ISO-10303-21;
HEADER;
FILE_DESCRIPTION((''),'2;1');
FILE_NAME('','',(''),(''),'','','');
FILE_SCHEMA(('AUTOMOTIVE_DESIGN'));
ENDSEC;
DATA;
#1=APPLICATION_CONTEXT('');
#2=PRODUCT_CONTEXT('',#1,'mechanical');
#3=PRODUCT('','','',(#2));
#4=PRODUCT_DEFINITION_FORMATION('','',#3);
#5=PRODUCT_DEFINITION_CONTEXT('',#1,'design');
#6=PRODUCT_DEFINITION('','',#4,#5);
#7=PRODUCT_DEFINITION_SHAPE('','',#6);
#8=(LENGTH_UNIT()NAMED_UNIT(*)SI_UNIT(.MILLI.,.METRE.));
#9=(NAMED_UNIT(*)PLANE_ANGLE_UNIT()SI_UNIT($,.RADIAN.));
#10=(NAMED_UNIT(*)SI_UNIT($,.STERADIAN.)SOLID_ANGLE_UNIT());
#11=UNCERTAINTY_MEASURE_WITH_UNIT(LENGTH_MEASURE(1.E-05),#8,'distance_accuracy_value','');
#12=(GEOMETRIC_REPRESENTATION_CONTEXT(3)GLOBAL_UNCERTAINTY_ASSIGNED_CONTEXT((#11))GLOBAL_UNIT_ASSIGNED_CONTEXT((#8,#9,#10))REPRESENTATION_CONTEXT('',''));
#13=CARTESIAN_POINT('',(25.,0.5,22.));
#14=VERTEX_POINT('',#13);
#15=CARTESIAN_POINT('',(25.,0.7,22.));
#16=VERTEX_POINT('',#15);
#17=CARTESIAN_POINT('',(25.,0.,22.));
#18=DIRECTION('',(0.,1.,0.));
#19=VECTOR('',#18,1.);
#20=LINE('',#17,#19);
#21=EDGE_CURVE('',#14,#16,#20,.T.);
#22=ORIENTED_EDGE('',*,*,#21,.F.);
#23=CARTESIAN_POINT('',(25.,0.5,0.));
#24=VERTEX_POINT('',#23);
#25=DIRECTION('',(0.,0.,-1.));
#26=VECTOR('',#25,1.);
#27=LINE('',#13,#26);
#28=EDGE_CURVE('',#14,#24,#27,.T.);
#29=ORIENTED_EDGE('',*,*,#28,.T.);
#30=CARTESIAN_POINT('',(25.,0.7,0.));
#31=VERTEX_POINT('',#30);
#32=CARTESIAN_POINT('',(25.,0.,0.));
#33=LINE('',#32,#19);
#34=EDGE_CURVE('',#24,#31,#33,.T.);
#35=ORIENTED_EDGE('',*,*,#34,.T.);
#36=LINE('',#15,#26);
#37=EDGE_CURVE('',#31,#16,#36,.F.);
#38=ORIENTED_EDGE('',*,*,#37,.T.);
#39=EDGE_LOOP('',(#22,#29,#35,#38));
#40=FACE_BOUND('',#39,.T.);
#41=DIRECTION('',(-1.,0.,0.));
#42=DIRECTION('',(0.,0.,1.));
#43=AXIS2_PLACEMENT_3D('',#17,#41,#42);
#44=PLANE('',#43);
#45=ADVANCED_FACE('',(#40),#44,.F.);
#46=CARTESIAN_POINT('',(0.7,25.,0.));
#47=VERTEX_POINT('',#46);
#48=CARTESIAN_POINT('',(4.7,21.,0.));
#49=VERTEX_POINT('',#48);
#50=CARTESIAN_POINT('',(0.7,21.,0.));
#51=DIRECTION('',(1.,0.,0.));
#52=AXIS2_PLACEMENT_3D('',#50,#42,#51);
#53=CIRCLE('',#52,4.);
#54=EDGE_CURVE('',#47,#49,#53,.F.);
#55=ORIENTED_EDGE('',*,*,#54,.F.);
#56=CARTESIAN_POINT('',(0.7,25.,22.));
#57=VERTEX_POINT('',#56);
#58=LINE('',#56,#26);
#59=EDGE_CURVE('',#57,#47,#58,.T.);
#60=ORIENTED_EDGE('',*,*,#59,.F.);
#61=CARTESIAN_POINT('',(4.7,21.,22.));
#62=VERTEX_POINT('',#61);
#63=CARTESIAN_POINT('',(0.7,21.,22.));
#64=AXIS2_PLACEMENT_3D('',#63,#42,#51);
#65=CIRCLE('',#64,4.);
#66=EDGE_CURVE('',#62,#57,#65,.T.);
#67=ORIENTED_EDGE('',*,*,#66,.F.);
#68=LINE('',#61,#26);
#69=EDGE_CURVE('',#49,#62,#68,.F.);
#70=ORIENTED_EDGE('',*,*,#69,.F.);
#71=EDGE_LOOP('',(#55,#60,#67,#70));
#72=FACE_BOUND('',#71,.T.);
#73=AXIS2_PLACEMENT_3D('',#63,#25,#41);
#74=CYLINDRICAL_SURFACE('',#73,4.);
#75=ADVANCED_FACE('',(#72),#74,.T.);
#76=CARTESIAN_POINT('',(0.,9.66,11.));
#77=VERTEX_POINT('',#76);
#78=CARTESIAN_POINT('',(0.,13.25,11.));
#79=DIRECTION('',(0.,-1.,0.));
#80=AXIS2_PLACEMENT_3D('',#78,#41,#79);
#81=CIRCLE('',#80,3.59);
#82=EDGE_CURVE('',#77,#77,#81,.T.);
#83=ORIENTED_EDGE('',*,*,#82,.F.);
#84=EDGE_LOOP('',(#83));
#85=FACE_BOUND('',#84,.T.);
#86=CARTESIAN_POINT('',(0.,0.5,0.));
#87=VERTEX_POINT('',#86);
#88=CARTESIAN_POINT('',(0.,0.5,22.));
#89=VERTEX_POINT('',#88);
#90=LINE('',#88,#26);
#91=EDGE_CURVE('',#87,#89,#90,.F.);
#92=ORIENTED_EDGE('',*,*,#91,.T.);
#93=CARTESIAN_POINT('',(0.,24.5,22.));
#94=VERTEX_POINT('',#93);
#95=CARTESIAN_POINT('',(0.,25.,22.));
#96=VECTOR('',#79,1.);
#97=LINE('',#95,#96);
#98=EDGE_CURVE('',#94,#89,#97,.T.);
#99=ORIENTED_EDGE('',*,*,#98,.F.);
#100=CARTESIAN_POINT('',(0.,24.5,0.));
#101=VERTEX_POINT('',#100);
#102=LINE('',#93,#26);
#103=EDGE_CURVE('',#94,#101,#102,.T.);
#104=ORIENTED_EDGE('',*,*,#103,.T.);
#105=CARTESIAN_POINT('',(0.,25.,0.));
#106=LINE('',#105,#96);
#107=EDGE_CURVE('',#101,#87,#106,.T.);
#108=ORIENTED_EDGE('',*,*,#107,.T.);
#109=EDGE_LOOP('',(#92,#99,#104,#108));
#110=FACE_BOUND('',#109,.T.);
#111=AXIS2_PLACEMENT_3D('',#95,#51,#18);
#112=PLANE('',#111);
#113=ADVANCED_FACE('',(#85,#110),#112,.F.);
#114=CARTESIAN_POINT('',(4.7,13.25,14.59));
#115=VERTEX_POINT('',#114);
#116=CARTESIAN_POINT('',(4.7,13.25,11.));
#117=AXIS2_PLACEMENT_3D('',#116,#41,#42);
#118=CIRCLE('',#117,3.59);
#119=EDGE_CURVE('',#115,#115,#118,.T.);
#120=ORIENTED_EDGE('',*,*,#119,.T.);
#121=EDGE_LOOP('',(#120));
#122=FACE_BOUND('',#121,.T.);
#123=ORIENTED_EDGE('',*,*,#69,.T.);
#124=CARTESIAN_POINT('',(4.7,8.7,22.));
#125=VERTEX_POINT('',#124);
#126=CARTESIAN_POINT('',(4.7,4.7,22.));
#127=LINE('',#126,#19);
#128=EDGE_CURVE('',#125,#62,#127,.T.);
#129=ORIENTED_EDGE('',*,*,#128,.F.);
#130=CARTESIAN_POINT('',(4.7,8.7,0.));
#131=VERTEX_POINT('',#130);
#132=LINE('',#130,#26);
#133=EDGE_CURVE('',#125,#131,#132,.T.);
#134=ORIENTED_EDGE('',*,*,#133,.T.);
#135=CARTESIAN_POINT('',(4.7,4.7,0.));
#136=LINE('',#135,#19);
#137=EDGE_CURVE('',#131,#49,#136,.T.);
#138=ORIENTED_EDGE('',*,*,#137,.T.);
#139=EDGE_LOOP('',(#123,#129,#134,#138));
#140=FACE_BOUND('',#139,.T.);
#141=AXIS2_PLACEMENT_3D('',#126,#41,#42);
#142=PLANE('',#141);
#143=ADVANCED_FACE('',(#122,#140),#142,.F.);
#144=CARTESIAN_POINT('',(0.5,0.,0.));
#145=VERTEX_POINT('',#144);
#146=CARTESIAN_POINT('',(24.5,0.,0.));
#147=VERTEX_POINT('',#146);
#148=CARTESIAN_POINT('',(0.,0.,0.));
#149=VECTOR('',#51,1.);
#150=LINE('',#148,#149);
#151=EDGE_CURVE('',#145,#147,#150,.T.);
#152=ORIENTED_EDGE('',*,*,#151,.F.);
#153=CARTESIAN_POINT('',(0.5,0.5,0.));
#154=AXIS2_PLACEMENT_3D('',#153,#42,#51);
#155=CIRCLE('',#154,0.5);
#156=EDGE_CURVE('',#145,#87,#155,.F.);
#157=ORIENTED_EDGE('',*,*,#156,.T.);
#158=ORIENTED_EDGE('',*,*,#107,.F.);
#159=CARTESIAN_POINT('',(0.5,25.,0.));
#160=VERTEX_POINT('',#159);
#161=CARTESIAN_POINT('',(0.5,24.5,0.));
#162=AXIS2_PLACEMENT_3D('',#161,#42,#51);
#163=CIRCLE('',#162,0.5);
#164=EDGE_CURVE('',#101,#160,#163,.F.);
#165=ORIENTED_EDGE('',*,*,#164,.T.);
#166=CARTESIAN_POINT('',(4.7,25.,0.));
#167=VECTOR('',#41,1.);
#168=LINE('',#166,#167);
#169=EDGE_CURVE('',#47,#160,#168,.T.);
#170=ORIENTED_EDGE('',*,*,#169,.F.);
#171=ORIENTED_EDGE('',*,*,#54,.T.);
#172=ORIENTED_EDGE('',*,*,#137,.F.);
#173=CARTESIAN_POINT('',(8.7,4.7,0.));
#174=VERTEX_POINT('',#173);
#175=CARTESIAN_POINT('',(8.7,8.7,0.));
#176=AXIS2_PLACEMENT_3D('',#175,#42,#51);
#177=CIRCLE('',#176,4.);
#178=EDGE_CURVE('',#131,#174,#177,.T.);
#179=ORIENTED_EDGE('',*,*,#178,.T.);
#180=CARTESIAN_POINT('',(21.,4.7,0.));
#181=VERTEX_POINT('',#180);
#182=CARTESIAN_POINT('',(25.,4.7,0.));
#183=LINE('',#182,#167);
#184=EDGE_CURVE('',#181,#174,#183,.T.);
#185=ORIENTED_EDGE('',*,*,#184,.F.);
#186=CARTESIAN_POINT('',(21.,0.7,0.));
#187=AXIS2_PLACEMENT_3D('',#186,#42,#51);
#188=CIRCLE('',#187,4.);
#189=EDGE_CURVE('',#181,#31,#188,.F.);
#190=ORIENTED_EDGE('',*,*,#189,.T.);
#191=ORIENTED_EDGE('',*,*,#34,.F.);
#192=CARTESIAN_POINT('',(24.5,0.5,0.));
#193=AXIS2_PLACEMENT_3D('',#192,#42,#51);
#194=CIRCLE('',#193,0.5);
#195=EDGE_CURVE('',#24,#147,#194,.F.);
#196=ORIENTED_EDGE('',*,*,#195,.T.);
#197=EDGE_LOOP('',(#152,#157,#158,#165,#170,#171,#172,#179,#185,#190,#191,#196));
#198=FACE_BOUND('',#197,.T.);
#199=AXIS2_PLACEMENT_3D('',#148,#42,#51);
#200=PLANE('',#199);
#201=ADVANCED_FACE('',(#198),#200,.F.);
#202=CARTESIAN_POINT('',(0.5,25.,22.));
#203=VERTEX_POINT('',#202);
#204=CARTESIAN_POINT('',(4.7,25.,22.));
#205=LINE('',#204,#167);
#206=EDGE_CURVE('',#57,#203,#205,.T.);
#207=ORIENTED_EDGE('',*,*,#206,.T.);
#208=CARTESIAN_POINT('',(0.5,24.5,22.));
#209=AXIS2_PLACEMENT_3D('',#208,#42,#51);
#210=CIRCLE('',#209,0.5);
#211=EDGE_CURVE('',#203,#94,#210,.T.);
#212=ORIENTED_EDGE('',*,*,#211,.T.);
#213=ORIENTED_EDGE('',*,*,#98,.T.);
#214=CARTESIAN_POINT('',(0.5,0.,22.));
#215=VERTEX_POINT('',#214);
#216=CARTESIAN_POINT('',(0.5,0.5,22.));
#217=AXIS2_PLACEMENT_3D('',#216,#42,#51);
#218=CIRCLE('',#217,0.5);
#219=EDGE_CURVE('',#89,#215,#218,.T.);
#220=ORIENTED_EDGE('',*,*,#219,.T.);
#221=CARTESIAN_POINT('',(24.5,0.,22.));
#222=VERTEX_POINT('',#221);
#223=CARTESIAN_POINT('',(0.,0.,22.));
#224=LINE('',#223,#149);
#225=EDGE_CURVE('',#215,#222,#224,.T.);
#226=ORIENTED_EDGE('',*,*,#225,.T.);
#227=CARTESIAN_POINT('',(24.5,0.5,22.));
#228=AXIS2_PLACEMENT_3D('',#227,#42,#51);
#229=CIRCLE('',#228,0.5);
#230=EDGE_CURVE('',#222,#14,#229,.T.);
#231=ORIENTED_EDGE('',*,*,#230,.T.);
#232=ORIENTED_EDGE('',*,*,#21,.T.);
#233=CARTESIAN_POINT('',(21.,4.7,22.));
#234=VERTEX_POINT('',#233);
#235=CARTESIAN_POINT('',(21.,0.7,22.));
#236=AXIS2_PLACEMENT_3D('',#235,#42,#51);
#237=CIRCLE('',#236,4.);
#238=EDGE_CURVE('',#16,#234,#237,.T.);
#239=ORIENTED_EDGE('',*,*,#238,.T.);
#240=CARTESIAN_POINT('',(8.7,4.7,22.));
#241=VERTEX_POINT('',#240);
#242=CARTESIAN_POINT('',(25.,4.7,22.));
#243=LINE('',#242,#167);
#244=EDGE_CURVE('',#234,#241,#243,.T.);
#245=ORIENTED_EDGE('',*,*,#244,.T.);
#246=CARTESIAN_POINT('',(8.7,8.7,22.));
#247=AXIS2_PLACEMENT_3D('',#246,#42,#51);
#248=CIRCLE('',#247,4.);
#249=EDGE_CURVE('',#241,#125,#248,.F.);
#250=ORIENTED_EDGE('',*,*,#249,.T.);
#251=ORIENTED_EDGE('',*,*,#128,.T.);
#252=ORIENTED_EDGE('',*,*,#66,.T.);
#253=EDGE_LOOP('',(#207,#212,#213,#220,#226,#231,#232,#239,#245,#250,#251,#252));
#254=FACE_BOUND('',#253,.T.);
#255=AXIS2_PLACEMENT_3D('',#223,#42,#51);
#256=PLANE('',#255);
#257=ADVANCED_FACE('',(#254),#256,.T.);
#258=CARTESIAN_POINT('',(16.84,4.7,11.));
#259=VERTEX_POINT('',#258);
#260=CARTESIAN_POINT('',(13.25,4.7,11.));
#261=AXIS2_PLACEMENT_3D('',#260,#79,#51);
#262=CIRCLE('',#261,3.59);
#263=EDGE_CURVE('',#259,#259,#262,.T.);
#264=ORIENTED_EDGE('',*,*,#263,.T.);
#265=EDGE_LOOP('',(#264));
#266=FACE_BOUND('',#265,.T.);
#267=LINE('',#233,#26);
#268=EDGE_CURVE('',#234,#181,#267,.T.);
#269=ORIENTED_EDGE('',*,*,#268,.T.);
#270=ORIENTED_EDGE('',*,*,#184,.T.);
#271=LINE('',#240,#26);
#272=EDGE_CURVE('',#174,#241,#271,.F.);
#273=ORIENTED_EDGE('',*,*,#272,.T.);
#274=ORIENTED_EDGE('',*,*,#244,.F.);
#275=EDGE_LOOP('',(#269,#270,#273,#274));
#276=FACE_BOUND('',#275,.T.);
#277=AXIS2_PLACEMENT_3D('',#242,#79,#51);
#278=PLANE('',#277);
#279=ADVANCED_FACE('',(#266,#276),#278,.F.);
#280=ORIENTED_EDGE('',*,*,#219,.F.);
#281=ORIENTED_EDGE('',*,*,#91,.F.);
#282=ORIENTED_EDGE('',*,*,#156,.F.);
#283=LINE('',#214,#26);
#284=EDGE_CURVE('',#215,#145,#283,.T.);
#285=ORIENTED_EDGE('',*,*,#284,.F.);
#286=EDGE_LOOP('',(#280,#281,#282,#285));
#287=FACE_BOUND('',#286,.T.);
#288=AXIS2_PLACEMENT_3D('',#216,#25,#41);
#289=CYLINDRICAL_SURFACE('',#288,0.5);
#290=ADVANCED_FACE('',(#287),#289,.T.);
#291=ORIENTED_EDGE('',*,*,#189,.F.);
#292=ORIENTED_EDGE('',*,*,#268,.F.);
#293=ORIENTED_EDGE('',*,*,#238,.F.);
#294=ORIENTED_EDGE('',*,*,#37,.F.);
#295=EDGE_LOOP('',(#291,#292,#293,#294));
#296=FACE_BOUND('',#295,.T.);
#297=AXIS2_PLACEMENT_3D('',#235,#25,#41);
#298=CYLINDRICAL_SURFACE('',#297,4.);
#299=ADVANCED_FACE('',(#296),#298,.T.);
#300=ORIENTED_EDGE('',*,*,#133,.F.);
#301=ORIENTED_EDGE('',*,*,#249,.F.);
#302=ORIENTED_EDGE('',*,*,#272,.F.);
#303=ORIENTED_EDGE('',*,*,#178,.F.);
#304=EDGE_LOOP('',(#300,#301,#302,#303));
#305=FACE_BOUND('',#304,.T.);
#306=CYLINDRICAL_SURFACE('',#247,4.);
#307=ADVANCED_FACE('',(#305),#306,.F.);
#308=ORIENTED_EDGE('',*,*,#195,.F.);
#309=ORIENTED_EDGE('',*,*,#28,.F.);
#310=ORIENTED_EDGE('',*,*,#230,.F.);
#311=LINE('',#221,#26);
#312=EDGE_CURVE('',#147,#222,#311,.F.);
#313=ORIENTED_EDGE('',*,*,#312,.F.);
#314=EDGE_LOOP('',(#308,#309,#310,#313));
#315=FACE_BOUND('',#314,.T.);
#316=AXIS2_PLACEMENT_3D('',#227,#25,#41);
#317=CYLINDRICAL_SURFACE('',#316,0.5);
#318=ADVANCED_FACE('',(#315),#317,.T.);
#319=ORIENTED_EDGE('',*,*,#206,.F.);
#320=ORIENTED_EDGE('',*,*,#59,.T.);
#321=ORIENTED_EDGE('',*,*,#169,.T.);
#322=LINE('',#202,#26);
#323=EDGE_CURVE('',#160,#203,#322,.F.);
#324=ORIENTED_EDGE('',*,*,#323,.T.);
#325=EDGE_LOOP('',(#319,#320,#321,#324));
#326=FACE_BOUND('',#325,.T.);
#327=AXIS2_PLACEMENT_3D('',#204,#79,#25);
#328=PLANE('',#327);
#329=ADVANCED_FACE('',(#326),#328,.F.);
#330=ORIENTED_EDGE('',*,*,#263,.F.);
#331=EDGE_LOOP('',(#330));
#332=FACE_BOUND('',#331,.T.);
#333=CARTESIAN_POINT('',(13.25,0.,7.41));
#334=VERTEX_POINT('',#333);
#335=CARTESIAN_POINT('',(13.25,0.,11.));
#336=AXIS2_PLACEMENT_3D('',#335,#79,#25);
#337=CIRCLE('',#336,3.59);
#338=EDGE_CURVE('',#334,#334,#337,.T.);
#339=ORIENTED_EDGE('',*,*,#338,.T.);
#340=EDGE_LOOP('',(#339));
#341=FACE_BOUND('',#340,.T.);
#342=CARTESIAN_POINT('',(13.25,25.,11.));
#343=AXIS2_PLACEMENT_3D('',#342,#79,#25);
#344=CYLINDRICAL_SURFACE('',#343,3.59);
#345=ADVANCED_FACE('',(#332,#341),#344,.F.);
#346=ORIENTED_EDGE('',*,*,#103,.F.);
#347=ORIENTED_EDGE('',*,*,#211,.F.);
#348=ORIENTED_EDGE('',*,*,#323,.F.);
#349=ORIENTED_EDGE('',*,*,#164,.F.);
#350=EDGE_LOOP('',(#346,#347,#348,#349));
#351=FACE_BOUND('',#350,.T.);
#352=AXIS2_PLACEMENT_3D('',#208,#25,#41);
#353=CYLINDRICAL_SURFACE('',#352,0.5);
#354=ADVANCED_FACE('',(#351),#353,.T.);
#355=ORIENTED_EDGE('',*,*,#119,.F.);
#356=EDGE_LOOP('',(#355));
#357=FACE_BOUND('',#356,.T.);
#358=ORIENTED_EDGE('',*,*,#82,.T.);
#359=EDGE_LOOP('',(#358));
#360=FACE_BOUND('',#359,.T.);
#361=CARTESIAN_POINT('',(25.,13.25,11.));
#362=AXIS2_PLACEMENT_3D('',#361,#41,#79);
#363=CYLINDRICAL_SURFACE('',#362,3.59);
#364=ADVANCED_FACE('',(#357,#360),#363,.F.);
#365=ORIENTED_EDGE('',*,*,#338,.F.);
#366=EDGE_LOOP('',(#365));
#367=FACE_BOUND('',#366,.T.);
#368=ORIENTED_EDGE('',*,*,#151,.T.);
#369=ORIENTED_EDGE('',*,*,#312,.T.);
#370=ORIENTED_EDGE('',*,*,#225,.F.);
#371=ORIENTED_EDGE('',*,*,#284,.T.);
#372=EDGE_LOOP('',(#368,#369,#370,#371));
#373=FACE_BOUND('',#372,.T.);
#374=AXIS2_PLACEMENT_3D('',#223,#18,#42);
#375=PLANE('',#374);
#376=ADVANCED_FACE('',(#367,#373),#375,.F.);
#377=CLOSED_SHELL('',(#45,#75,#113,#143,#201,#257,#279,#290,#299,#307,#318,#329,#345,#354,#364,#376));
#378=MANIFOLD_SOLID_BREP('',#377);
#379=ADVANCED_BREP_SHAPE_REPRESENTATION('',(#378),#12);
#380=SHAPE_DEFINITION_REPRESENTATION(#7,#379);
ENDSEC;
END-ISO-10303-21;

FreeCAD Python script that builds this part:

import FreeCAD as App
import Part
import Sketcher


def edges_at(feature, points):
    """Names of the edges that pass closest to the given points."""
    edges = feature.Shape.Edges
    near = lambda p: min(range(len(edges)), key=lambda i: edges[i].distToShape(Part.Vertex(*p))[0])
    return sorted({f"Edge{near(p) + 1}" for p in points})

doc = App.newDocument("Part")
params = doc.addObject("Spreadsheet::Sheet", "Params")
for row, (alias, value) in enumerate([
    ("sketch1_width", "25 mm"),
    ("sketch1_width2", "20.3 mm"),
    ("pad1_length", "22 mm"),
    ("sketch2_diameter", "7.18 mm"),
    ("sketch3_diameter", "7.18 mm"),
    ("fillet_radius", "4 mm"),
    ("fillet2_radius", "0.5 mm"),
], start=1):
    params.set(f"A{row}", alias)
    params.set(f"B{row}", "=" + value)
    params.setAlias(f"B{row}", alias)

body = doc.addObject("PartDesign::Body", "Body")

# Sketch on XY plane
sketch1 = doc.addObject("Sketcher::SketchObject", "Sketch")
body.addObject(sketch1)
sketch1.AttachmentSupport = (doc.XY_Plane, [""])
sketch1.MapMode = "FlatFace"
sketch1.addGeometry([
    Part.LineSegment(App.Vector(0, 0, 0), App.Vector(25, 0, 0)),  # 0
    Part.LineSegment(App.Vector(25, 0, 0), App.Vector(25, 4.7, 0)),  # 1
    Part.LineSegment(App.Vector(25, 4.7, 0), App.Vector(4.7, 4.7, 0)),  # 2
    Part.LineSegment(App.Vector(4.7, 4.7, 0), App.Vector(4.7, 25, 0)),  # 3
    Part.LineSegment(App.Vector(4.7, 25, 0), App.Vector(0, 25, 0)),  # 4
    Part.LineSegment(App.Vector(0, 25, 0), App.Vector(0, 0, 0)),  # 5
], False)
sketch1.addConstraint([
    Sketcher.Constraint("Coincident", 0, 2, 1, 1),
    Sketcher.Constraint("Coincident", 1, 2, 2, 1),
    Sketcher.Constraint("Coincident", 2, 2, 3, 1),
    Sketcher.Constraint("Coincident", 3, 2, 4, 1),
    Sketcher.Constraint("Coincident", 4, 2, 5, 1),
    Sketcher.Constraint("Coincident", 5, 2, 0, 1),
    Sketcher.Constraint("Horizontal", 0),
    Sketcher.Constraint("Vertical", 1),
    Sketcher.Constraint("Horizontal", 2),
    Sketcher.Constraint("Vertical", 3),
    Sketcher.Constraint("Horizontal", 4),
    Sketcher.Constraint("Vertical", 5),
    Sketcher.Constraint("Coincident", 5, 2, -1, 1),
    Sketcher.Constraint("Equal", 4, 1),
    Sketcher.Constraint("Equal", 2, 3),
    Sketcher.Constraint("DistanceX", 0, 1, 0, 2, 25.0),
    Sketcher.Constraint("DistanceX", 2, 2, 2, 1, 20.3),
])
sketch1.setExpression("Constraints[15]", "Params.sketch1_width")
sketch1.setExpression("Constraints[16]", "Params.sketch1_width2")
pad1 = doc.addObject("PartDesign::Pad", "Pad")
body.addObject(pad1)
pad1.Profile = sketch1
pad1.setExpression("Length", "Params.pad1_length")

# Sketch on XZ plane
sketch2 = doc.addObject("Sketcher::SketchObject", "Sketch001")
body.addObject(sketch2)
sketch2.AttachmentSupport = (doc.XZ_Plane, [""])
sketch2.MapMode = "FlatFace"
sketch2.addGeometry(Part.Circle(App.Vector(13.25, 11, 0), App.Vector(0, 0, 1), 3.59), False)
sketch2.addConstraint([
    Sketcher.Constraint("Diameter", 0, 7.18),
    Sketcher.Constraint("DistanceY", -1, 1, 0, 3, 11.0),
    Sketcher.Constraint("DistanceX", -1, 1, 0, 3, 13.25),
])
sketch2.setExpression("Constraints[0]", "Params.sketch2_diameter")
pocket1 = doc.addObject("PartDesign::Pocket", "Pocket")
body.addObject(pocket1)
pocket1.Profile = sketch2
pocket1.Type = "ThroughAll"

# Sketch on YZ plane
sketch3 = doc.addObject("Sketcher::SketchObject", "Sketch002")
body.addObject(sketch3)
sketch3.AttachmentSupport = (doc.YZ_Plane, [""])
sketch3.MapMode = "FlatFace"
sketch3.addGeometry(Part.Circle(App.Vector(13.25, 11, 0), App.Vector(0, 0, 1), 3.59), False)
sketch3.addConstraint([
    Sketcher.Constraint("Diameter", 0, 7.18),
    Sketcher.Constraint("DistanceY", -1, 1, 0, 3, 11.0),
    Sketcher.Constraint("DistanceX", -1, 1, 0, 3, 13.25),
])
sketch3.setExpression("Constraints[0]", "Params.sketch3_diameter")
pocket2 = doc.addObject("PartDesign::Pocket", "Pocket001")
body.addObject(pocket2)
pocket2.Profile = sketch3
pocket2.Type = "ThroughAll"
pocket2.Reversed = True
doc.recompute()

fillet = doc.addObject("PartDesign::Fillet", "Fillet")
body.addObject(fillet)
fillet.Base = (pocket2, edges_at(pocket2, [(4.7, 25, 11), (4.7, 4.7, 11), (25, 4.7, 11)]))
fillet.setExpression("Radius", "Params.fillet_radius")
doc.recompute()

fillet2 = doc.addObject("PartDesign::Fillet", "Fillet001")
body.addObject(fillet2)
fillet2.Base = (fillet, edges_at(fillet, [(0, 25, 11), (25, 0, 11), (0, 0, 11)]))
fillet2.setExpression("Radius", "Params.fillet2_radius")

doc.recompute()
